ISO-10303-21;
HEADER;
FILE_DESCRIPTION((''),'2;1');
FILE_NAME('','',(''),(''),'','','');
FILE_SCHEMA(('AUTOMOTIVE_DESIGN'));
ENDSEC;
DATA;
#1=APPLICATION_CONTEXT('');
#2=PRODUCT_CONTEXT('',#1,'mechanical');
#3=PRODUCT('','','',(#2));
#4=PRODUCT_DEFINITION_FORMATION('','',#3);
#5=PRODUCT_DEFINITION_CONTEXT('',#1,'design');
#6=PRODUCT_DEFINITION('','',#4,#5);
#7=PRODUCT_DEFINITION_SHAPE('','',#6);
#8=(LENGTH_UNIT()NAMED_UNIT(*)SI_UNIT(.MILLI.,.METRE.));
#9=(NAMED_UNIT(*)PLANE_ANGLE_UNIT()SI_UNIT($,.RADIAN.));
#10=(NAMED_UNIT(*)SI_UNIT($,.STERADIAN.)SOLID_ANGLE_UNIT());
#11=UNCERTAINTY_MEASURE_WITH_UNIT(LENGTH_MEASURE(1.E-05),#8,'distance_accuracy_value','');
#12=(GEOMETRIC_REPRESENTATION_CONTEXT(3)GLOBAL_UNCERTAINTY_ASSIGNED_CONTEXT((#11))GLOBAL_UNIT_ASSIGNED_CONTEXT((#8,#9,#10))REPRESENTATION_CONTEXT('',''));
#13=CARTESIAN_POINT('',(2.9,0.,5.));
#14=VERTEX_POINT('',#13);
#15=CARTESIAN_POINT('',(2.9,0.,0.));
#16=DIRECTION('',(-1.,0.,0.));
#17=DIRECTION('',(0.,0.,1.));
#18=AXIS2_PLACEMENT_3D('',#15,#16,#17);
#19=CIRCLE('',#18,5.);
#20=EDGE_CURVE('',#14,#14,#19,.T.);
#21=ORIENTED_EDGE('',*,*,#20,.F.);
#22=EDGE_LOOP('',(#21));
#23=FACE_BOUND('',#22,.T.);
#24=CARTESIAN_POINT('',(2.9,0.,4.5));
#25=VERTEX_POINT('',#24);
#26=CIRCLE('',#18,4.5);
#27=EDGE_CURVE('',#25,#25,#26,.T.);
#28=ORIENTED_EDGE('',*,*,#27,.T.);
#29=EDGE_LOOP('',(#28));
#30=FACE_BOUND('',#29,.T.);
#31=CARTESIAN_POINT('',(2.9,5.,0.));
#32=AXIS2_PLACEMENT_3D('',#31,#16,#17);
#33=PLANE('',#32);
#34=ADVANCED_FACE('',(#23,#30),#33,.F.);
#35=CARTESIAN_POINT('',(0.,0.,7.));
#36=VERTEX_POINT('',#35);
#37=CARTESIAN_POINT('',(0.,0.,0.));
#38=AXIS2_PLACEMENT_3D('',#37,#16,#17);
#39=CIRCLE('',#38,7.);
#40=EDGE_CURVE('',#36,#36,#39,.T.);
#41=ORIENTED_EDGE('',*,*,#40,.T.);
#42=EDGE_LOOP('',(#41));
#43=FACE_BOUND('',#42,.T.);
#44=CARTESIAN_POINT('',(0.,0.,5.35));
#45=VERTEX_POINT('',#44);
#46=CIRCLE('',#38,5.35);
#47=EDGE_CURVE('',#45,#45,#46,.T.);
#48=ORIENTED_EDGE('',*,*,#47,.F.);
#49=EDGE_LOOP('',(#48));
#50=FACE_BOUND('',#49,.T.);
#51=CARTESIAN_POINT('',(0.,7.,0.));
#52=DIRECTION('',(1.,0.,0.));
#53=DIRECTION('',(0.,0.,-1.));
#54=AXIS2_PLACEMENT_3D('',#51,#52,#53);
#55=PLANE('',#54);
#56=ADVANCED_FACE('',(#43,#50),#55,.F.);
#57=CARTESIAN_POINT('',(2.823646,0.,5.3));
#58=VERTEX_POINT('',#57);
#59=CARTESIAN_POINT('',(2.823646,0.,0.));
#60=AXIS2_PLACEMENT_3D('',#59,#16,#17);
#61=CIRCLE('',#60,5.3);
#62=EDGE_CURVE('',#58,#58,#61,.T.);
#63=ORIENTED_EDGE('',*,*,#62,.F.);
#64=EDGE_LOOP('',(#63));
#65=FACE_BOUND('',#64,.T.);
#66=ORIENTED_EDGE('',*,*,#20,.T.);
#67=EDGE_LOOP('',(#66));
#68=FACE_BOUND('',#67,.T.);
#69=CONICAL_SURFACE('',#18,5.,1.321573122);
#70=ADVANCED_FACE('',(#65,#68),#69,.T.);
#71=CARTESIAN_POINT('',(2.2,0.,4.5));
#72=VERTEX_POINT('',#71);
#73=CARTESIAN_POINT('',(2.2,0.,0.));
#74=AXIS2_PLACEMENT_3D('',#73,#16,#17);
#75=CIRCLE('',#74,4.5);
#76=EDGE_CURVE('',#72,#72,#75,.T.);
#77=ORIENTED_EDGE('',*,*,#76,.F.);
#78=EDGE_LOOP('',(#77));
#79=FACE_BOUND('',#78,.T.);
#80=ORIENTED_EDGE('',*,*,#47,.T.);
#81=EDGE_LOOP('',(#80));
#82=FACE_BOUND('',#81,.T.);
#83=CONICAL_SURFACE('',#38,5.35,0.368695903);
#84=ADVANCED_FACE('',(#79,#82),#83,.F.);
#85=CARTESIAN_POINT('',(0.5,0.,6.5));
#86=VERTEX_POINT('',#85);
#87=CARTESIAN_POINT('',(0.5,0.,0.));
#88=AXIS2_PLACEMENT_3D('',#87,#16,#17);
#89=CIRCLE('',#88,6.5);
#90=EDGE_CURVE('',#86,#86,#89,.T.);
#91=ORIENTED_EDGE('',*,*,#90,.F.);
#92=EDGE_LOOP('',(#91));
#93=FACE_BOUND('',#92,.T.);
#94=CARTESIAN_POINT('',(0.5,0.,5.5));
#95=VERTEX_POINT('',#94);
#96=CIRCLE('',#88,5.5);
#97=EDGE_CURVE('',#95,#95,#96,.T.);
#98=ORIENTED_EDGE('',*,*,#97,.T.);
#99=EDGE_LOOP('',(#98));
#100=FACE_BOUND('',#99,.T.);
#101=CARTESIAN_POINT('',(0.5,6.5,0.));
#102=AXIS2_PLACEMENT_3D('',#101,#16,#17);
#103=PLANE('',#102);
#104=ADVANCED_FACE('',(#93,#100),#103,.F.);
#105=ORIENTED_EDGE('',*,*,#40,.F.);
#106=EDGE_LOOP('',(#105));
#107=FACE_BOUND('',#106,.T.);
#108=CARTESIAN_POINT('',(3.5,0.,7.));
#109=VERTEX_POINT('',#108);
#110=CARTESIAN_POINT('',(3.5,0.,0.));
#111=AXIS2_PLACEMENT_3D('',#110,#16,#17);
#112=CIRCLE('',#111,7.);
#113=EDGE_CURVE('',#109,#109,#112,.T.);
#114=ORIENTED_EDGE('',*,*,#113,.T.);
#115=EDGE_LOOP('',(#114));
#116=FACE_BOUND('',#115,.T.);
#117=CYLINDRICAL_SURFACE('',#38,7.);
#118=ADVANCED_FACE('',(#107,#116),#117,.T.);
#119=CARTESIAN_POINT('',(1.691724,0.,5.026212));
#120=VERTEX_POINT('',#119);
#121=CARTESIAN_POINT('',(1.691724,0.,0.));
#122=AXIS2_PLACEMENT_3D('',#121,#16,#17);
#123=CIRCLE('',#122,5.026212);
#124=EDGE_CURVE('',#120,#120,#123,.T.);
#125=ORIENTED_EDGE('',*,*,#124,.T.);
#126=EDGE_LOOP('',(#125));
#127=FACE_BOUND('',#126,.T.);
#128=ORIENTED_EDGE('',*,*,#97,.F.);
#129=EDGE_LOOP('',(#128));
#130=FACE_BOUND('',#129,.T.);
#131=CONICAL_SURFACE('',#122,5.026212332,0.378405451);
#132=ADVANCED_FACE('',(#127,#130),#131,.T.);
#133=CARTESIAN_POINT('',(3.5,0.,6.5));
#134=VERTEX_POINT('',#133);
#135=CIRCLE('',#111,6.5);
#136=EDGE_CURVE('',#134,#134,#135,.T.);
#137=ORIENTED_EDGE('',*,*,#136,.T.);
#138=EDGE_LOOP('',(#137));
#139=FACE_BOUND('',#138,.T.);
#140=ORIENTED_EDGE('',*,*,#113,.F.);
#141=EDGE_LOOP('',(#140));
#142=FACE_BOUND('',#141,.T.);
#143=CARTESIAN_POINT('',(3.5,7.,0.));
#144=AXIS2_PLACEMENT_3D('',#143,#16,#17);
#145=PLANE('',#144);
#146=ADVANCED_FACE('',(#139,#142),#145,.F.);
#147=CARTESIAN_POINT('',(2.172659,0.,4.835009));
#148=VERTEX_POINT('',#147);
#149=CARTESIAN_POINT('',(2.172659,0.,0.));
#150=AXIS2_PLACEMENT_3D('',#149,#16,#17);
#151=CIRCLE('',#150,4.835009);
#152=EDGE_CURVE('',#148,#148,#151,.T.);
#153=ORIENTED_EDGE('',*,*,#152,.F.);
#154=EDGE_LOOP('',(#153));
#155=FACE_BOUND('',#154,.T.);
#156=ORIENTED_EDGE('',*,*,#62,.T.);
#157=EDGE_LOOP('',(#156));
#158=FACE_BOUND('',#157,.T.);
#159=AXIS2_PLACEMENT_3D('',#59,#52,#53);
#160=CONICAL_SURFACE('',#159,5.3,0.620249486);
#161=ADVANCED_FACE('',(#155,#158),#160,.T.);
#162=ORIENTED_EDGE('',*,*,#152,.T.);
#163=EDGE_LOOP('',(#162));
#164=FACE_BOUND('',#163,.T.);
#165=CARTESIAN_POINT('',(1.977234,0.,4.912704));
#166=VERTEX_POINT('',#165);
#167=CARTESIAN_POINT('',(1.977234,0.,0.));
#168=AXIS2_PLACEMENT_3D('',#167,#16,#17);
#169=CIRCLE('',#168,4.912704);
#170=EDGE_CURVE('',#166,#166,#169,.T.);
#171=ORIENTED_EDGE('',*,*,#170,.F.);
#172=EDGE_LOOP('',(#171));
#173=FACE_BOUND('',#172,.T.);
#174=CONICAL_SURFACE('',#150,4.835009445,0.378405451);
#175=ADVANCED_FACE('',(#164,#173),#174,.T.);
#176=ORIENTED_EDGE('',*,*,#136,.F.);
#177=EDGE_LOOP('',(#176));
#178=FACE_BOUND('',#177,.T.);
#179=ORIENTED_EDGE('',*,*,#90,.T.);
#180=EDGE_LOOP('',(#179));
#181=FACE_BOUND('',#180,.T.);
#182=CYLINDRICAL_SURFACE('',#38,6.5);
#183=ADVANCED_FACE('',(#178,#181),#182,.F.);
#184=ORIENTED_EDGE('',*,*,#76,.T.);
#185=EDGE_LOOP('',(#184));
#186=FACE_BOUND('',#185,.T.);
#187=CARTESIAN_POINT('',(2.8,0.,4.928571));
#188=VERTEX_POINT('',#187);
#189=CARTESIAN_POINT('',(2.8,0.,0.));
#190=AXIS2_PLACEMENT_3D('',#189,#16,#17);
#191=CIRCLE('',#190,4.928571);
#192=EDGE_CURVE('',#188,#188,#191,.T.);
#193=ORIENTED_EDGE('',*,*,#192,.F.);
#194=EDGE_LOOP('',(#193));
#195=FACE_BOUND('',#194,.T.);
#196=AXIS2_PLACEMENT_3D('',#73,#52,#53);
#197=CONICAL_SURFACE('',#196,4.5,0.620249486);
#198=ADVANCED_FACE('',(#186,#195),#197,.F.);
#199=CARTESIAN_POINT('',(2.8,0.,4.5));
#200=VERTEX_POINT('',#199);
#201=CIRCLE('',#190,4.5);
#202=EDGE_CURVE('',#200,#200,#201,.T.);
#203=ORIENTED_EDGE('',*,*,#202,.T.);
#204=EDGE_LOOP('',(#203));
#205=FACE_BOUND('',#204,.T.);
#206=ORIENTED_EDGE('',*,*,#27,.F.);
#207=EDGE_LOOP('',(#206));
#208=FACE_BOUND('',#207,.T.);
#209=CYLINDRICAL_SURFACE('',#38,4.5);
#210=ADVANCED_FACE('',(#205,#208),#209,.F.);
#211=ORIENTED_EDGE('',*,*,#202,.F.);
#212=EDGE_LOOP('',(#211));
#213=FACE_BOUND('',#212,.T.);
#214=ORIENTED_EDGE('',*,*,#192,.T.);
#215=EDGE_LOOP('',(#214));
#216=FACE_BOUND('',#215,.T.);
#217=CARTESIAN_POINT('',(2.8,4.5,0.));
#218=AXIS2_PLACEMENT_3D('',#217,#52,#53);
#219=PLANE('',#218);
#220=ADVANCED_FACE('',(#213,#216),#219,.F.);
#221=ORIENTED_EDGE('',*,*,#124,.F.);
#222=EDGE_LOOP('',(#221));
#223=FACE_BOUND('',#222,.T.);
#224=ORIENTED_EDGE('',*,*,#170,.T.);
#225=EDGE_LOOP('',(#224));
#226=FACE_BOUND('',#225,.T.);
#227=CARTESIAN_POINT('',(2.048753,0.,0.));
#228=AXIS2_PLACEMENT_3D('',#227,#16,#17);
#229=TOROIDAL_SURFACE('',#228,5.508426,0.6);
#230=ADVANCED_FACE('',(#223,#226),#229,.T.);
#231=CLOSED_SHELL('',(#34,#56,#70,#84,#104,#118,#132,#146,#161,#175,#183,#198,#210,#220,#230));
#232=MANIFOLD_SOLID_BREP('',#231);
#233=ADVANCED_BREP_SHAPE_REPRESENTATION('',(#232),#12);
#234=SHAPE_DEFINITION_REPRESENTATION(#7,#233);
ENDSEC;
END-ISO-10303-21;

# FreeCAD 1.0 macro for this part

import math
import FreeCAD as App
import Part
import Sketcher

doc = App.newDocument("Part")
params = doc.addObject("Spreadsheet::Sheet", "Params")
for row, (alias, value) in enumerate([
    ("sketch1_radius", "0.6 mm"),
    ("sketch1_width", "3 mm"),
    ("sketch1_height", "1 mm"),
    ("sketch1_width2", "3.5 mm"),
    ("sketch1_width3", "0.1 mm"),
    ("revolution_angle", "360 deg"),
], start=1):
    params.set(f"A{row}", alias)
    params.set(f"B{row}", "=" + value)
    params.setAlias(f"B{row}", alias)

body = doc.addObject("PartDesign::Body", "Body")

# Sketch on XY plane
sketch1 = body.newObject("Sketcher::SketchObject", "Sketch")
sketch1.AttachmentSupport = (doc.getObject("XY_Plane"), [""])
sketch1.MapMode = "FlatFace"
sketch1.addGeometry([
    Part.LineSegment(App.Vector(3.5, 7, 0), App.Vector(0, 7, 0)),  # 0
    Part.LineSegment(App.Vector(0, 7, 0), App.Vector(0, 5.35, 0)),  # 1
    Part.LineSegment(App.Vector(0, 5.35, 0), App.Vector(2.2, 4.5, 0)),  # 2
    Part.LineSegment(App.Vector(2.2, 4.5, 0), App.Vector(2.8, 4.928571, 0)),  # 3
    Part.LineSegment(App.Vector(2.8, 4.928571, 0), App.Vector(2.8, 4.5, 0)),  # 4
    Part.LineSegment(App.Vector(2.8, 4.5, 0), App.Vector(2.9, 4.5, 0)),  # 5
    Part.LineSegment(App.Vector(2.9, 4.5, 0), App.Vector(2.9, 5, 0)),  # 6
    Part.LineSegment(App.Vector(2.9, 5, 0), App.Vector(2.823646, 5.3, 0)),  # 7
    Part.LineSegment(App.Vector(2.823646, 5.3, 0), App.Vector(2.172659, 4.835009, 0)),  # 8
    Part.LineSegment(App.Vector(2.172659, 4.835009, 0), App.Vector(1.977234, 4.912704, 0)),  # 9
    Part.ArcOfCircle(Part.Circle(App.Vector(2.048753, 5.508426, 0), App.Vector(0, 0, 1), 0.6), math.radians(-96.845924), math.radians(233.483853)),  # 10
    Part.LineSegment(App.Vector(1.691724, 5.026212, 0), App.Vector(0.5, 5.5, 0)),  # 11
    Part.LineSegment(App.Vector(0.5, 5.5, 0), App.Vector(0.5, 6.5, 0)),  # 12
    Part.LineSegment(App.Vector(0.5, 6.5, 0), App.Vector(3.5, 6.5, 0)),  # 13
    Part.LineSegment(App.Vector(3.5, 6.5, 0), App.Vector(3.5, 7, 0)),  # 14
], False)
sketch1.addConstraint([
    Sketcher.Constraint("Coincident", 0, 2, 1, 1),
    Sketcher.Constraint("Coincident", 1, 2, 2, 1),
    Sketcher.Constraint("Coincident", 2, 2, 3, 1),
    Sketcher.Constraint("Coincident", 3, 2, 4, 1),
    Sketcher.Constraint("Coincident", 4, 2, 5, 1),
    Sketcher.Constraint("Coincident", 5, 2, 6, 1),
    Sketcher.Constraint("Coincident", 6, 2, 7, 1),
    Sketcher.Constraint("Coincident", 7, 2, 8, 1),
    Sketcher.Constraint("Coincident", 8, 2, 9, 1),
    Sketcher.Constraint("Coincident", 9, 2, 10, 1),
    Sketcher.Constraint("Coincident", 10, 2, 11, 1),
    Sketcher.Constraint("Coincident", 11, 2, 12, 1),
    Sketcher.Constraint("Coincident", 12, 2, 13, 1),
    Sketcher.Constraint("Coincident", 13, 2, 14, 1),
    Sketcher.Constraint("Coincident", 14, 2, 0, 1),
    Sketcher.Constraint("Horizontal", 0),
    Sketcher.Constraint("Vertical", 1),
    Sketcher.Constraint("Vertical", 4),
    Sketcher.Constraint("Horizontal", 5),
    Sketcher.Constraint("Vertical", 6),
    Sketcher.Constraint("Vertical", 12),
    Sketcher.Constraint("Horizontal", 13),
    Sketcher.Constraint("Vertical", 14),
    Sketcher.Constraint("PointOnObject", 0, 2, -2),
    Sketcher.Constraint("Parallel", 3, 8),
    Sketcher.Constraint("Parallel", 9, 11),
    Sketcher.Constraint("Horizontal", 2, 2, 4, 2),
    Sketcher.Constraint("Equal", 6, 14),
    Sketcher.Constraint("Radius", 10, 0.6),
    Sketcher.Constraint("DistanceX", 13, 1, 13, 2, 3.0),
    Sketcher.Constraint("DistanceY", 12, 1, 12, 2, 1.0),
    Sketcher.Constraint("DistanceX", 0, 2, 0, 1, 3.5),
    Sketcher.Constraint("DistanceX", 5, 1, 5, 2, 0.1),
    Sketcher.Constraint("DistanceY", 6, 1, 6, 2, 0.5),
    Sketcher.Constraint("DistanceY", -1, 1, 0, 2, 7.0),
    Sketcher.Constraint("DistanceY", -1, 1, 6, 2, 5.0),
    Sketcher.Constraint("Distance", 8, 0.8),
    Sketcher.Constraint("DistanceY", 1, 2, 1, 1, 1.65),
    Sketcher.Constraint("DistanceX", -1, 1, 2, 2, 2.2),
    Sketcher.Constraint("DistanceX", -1, 1, 3, 2, 2.8),
    Sketcher.Constraint("DistanceY", -1, 1, 7, 2, 5.3),
    Sketcher.Constraint("DistanceY", 4, 2, 4, 1, 0.428571),
    Sketcher.Constraint("Distance", 11, 1.282451),
    Sketcher.Constraint("DistanceX", -1, 1, 8, 2, 2.172659),
    Sketcher.Constraint("DistanceX", 9, 2, 10, 3, 0.07152),
    Sketcher.Constraint("DistanceX", 10, 2, 9, 2, 0.28551),
])
sketch1.setExpression("Constraints[28]", "Params.sketch1_radius")
sketch1.setExpression("Constraints[29]", "Params.sketch1_width")
sketch1.setExpression("Constraints[30]", "Params.sketch1_height")
sketch1.setExpression("Constraints[31]", "Params.sketch1_width2")
sketch1.setExpression("Constraints[32]", "Params.sketch1_width3")
revolution = body.newObject("PartDesign::Revolution", "Revolution")
revolution.Profile = sketch1
revolution.ReferenceAxis = (sketch1, ["H_Axis"])
revolution.setExpression("Angle", "Params.revolution_angle")

doc.recompute()
